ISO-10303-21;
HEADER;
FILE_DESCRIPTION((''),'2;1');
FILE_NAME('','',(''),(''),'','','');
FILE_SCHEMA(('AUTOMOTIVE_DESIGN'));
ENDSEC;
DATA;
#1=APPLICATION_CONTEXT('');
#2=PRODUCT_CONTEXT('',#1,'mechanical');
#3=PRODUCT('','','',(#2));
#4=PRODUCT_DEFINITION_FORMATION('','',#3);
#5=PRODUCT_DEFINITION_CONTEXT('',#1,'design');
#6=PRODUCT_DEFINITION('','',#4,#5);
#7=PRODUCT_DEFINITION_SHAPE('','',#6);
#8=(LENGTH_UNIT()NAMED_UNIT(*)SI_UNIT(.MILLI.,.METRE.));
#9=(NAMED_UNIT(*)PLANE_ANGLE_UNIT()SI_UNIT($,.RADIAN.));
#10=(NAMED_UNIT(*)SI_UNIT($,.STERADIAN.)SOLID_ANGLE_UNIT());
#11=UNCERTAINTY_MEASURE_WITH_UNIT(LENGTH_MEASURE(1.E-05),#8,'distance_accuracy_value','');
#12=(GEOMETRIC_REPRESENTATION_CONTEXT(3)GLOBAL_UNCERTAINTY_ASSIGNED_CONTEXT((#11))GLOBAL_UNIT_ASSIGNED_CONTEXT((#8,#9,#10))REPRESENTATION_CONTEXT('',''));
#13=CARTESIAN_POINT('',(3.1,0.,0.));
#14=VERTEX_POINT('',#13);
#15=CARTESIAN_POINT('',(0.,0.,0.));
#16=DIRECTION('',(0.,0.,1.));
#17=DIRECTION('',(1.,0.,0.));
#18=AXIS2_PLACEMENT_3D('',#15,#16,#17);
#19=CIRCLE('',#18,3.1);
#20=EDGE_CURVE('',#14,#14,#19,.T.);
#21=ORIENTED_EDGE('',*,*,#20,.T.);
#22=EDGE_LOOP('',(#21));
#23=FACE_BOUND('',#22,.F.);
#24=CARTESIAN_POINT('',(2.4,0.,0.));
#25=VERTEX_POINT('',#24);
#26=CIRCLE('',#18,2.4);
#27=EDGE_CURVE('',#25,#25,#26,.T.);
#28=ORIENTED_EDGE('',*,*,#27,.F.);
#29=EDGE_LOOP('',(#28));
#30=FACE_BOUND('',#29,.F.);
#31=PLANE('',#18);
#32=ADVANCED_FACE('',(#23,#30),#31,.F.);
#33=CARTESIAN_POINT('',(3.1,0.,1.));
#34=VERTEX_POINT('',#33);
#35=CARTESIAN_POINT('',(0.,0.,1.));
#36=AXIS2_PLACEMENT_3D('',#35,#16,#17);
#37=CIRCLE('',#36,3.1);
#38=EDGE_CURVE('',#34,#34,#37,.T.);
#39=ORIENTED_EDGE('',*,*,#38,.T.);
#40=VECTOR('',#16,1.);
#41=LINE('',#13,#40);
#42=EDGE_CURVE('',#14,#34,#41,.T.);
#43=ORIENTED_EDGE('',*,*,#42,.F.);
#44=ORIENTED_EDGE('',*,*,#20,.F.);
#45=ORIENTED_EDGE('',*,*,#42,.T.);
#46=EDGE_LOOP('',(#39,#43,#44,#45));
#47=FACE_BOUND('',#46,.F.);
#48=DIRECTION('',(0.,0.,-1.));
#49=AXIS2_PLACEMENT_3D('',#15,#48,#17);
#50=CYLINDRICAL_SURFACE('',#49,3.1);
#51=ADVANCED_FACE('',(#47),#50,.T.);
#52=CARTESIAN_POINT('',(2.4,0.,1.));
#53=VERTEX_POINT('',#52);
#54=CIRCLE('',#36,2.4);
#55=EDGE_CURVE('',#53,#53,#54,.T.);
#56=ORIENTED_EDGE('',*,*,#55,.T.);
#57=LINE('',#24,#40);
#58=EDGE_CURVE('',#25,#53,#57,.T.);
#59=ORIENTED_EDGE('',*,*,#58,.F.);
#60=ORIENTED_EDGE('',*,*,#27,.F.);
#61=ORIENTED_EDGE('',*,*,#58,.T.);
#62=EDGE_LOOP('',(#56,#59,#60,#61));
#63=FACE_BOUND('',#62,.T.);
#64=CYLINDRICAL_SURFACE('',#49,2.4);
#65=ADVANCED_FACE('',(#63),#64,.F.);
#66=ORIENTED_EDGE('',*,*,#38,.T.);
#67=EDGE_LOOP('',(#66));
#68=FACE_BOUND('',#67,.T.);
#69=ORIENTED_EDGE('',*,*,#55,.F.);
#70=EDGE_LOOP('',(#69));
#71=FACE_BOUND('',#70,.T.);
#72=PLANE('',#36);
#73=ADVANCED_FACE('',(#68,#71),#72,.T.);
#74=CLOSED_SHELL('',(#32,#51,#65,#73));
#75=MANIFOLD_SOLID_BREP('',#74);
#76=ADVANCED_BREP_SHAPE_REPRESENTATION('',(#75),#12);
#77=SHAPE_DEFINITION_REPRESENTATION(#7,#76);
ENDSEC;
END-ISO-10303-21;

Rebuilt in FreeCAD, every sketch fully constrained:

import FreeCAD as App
import Part
import Sketcher
from FreeCAD import Vector
Q = App.Units.Quantity

doc = App.newDocument("Part")
body = doc.addObject("PartDesign::Body", "Body")

# Sketch on XY plane
sketch1 = body.newObject("Sketcher::SketchObject", "Sketch")
sketch1.AttachmentSupport = (doc.getObject("XY_Plane"), [""])
sketch1.MapMode = "FlatFace"
sketch1.addGeometry(Part.Circle(Vector(0, 0, 0), Vector(0, 0, 1), 3.1), False)
sketch1.addGeometry(Part.Circle(Vector(0, 0, 0), Vector(0, 0, 1), 2.4), False)
sketch1.addConstraint(Sketcher.Constraint("Coincident", 0, 3, -1, 1))
sketch1.addConstraint(Sketcher.Constraint("Coincident", 1, 3, -1, 1))
sketch1.addConstraint(Sketcher.Constraint("Diameter", 0, Q("6.2 mm")))
sketch1.addConstraint(Sketcher.Constraint("Diameter", 1, Q("4.8 mm")))
pad1 = body.newObject("PartDesign::Pad", "Pad")
pad1.Profile = sketch1
pad1.Length = 1

doc.recompute()
